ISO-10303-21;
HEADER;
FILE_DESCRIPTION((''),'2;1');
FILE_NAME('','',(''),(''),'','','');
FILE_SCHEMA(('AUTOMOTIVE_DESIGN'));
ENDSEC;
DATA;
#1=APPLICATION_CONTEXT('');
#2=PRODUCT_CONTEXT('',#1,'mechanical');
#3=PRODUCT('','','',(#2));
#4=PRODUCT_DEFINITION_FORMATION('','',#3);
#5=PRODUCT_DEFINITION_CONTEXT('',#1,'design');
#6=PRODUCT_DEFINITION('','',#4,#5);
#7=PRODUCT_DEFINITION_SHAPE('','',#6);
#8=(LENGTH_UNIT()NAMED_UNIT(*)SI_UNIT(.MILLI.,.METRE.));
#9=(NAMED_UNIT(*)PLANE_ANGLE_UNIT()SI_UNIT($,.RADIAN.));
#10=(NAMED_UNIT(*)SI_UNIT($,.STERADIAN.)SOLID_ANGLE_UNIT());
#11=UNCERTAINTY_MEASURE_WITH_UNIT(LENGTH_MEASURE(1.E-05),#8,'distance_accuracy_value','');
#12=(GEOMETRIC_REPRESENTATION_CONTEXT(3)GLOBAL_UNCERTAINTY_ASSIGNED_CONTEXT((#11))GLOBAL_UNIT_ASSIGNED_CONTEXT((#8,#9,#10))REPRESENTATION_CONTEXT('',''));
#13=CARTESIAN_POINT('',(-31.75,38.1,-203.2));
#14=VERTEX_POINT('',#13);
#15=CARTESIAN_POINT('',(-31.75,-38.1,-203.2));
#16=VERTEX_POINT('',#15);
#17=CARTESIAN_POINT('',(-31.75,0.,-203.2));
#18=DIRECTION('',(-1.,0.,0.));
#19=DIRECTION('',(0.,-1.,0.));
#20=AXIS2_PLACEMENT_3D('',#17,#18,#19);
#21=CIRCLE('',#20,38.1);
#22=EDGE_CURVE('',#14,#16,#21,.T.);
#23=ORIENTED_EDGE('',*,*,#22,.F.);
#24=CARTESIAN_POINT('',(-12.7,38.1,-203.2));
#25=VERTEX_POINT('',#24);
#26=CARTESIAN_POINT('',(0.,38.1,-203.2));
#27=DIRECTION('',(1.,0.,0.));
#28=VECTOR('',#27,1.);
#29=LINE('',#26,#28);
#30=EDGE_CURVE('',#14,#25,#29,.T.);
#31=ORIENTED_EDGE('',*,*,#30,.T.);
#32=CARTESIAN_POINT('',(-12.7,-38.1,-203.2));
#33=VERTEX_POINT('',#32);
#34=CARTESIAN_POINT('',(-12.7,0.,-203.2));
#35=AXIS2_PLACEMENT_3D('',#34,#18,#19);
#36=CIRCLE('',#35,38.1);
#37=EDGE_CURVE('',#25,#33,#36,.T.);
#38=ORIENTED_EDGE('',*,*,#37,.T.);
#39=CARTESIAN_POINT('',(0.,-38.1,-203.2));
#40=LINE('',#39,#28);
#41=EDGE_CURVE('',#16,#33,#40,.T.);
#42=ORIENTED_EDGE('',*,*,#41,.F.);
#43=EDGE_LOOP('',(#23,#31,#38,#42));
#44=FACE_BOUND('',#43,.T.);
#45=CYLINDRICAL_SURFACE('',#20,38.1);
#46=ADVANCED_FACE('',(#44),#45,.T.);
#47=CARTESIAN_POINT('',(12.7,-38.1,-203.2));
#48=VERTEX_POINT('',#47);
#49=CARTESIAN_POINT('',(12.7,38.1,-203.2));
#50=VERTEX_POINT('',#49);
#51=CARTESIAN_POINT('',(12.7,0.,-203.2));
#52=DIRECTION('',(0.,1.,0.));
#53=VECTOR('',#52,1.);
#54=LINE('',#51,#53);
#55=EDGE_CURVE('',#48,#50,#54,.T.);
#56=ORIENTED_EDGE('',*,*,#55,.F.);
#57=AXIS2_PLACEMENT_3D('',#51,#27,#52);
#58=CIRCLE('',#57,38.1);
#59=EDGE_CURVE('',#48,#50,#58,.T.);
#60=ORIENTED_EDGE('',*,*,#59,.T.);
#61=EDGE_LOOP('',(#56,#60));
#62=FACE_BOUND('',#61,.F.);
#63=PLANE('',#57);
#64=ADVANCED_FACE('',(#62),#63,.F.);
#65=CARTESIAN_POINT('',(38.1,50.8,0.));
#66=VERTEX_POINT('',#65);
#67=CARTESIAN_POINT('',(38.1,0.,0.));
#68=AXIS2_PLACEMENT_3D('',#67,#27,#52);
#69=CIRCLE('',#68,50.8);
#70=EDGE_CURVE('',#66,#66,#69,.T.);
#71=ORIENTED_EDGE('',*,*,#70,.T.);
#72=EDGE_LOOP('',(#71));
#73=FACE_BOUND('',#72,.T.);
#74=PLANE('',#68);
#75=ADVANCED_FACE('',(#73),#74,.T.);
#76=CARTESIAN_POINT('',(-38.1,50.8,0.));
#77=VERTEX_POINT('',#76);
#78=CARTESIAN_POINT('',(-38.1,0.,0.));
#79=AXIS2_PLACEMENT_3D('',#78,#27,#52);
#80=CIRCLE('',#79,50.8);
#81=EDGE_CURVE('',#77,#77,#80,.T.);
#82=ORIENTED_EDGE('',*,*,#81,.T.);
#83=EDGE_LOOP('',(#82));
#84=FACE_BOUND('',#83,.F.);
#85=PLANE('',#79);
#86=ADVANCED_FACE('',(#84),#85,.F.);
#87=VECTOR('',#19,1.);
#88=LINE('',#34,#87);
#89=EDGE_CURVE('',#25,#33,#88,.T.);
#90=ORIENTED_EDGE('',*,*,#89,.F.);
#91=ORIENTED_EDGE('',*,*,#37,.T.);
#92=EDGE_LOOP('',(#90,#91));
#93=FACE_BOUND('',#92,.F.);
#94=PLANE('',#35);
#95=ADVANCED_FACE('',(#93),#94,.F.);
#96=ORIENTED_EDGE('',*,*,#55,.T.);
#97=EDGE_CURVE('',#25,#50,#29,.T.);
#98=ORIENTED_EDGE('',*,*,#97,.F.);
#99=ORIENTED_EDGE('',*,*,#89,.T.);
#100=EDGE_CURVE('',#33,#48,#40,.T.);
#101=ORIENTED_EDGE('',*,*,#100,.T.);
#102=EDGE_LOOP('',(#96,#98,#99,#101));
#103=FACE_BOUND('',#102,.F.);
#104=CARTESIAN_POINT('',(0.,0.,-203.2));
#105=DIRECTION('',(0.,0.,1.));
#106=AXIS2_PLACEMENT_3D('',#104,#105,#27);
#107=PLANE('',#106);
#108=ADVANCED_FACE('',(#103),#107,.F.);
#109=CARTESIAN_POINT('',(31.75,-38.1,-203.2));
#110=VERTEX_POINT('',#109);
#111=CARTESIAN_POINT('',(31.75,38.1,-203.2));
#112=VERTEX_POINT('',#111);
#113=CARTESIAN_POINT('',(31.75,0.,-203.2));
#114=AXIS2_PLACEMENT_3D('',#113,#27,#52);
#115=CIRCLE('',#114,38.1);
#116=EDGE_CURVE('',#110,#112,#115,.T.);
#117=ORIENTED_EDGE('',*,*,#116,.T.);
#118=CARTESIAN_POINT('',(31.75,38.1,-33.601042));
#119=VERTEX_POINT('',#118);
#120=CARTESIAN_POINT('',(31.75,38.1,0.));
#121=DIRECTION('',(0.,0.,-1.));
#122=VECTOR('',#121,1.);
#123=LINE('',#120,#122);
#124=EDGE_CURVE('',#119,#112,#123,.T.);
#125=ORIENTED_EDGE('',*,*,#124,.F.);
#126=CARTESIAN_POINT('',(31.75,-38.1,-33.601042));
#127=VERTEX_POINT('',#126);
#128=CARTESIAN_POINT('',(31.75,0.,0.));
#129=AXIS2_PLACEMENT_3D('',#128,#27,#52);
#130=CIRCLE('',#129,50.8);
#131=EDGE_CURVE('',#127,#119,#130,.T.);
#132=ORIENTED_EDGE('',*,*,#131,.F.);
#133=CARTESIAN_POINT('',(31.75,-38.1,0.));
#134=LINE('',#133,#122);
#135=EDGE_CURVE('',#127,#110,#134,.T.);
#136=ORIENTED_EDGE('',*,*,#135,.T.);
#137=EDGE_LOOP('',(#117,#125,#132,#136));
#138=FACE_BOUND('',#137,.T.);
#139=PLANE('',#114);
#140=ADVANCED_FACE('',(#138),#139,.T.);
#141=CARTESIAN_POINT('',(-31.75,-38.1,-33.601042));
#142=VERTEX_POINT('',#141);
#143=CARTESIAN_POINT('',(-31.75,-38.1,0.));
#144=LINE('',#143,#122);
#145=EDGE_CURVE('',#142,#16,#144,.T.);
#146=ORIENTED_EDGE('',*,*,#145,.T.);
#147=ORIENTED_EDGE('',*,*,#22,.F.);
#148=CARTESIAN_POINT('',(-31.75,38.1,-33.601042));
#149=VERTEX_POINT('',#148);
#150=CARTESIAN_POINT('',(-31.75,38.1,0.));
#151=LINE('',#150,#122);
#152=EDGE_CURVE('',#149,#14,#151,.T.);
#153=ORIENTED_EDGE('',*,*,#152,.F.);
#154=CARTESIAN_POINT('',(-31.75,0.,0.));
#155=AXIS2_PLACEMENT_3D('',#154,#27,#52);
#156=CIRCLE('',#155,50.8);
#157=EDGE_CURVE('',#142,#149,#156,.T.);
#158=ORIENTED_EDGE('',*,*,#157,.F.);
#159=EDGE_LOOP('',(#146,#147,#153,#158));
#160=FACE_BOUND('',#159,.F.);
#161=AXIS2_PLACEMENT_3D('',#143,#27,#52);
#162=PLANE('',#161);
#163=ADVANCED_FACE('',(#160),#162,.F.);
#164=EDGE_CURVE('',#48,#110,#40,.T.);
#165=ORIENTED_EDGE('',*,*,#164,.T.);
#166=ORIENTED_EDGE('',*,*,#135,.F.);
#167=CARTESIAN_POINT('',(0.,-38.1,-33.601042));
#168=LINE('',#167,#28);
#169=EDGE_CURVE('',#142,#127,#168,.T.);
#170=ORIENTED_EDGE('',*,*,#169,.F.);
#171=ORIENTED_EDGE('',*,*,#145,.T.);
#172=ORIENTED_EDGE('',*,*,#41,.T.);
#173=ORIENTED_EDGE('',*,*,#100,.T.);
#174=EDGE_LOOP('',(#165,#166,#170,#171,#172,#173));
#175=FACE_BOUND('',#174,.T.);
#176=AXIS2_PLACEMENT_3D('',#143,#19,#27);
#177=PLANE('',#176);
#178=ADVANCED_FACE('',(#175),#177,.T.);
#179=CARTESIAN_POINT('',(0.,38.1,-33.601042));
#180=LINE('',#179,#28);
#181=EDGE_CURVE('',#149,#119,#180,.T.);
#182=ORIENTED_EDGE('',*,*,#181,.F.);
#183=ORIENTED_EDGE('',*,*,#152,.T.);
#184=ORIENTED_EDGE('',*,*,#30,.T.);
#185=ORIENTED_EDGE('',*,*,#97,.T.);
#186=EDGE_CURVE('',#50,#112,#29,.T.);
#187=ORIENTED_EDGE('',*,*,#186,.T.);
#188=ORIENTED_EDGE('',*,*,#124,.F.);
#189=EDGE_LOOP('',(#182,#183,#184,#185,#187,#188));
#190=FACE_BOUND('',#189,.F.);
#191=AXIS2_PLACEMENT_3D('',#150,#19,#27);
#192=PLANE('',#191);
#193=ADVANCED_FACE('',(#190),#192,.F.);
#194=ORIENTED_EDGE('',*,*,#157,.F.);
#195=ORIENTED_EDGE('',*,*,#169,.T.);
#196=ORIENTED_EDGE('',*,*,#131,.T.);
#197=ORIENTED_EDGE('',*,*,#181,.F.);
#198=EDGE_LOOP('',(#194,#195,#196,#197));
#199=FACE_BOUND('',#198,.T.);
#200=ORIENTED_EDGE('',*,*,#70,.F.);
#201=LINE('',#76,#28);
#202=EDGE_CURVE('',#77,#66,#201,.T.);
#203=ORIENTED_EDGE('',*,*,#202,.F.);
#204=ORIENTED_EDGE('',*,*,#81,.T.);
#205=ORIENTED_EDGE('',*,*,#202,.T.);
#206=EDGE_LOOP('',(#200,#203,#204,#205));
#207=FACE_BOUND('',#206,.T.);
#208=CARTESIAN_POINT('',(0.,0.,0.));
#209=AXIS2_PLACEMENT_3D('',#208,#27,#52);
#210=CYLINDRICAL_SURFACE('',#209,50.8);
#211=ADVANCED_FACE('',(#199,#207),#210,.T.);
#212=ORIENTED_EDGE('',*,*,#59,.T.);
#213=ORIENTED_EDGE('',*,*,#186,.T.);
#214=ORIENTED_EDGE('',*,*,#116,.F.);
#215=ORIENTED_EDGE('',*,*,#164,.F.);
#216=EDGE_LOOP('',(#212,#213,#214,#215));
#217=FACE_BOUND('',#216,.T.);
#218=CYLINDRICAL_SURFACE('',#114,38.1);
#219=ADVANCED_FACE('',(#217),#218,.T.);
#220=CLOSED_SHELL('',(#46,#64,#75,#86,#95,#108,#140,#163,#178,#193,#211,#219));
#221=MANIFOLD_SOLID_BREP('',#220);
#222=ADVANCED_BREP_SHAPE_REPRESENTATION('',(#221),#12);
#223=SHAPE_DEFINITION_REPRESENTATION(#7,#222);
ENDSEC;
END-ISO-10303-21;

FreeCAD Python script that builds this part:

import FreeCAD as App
import Part
import Sketcher

V = App.Vector
Q = App.Units.Quantity

doc = App.newDocument("Part")
body = doc.addObject("PartDesign::Body", "Body")

# Sketch on YZ plane
sketch1 = body.newObject("Sketcher::SketchObject", "Sketch")
sketch1.AttachmentSupport = (doc.getObject("YZ_Plane"), [""])
sketch1.MapMode = "FlatFace"
sketch1.addGeometry(Part.Circle(V(0, 0, 0), V(0, 0, 1), 51), False)
sketch1.addConstraint(Sketcher.Constraint("Coincident", 0, 3, -1, 1))
sketch1.addConstraint(Sketcher.Constraint("Diameter", 0, Q("4 in")))
pad1 = body.newObject("PartDesign::Pad", "Pad")
pad1.Profile = sketch1
pad1.Length = Q("3 in")
pad1.Midplane = True

# Sketch on XY plane
sketch2 = body.newObject("Sketcher::SketchObject", "Sketch001")
sketch2.AttachmentSupport = (doc.getObject("XY_Plane"), [""])
sketch2.MapMode = "FlatFace"
sketch2.addGeometry(Part.LineSegment(V(-32, 38, 0), V(-32, -38, 0)), False)
sketch2.addGeometry(Part.LineSegment(V(-32, -38, 0), V(32, -38, 0)), False)
sketch2.addGeometry(Part.LineSegment(V(32, -38, 0), V(32, 38, 0)), False)
sketch2.addGeometry(Part.LineSegment(V(32, 38, 0), V(-32, 38, 0)), False)
sketch2.addConstraint(Sketcher.Constraint("Coincident", 0, 2, 1, 1))
sketch2.addConstraint(Sketcher.Constraint("Coincident", 1, 2, 2, 1))
sketch2.addConstraint(Sketcher.Constraint("Coincident", 2, 2, 3, 1))
sketch2.addConstraint(Sketcher.Constraint("Coincident", 3, 2, 0, 1))
sketch2.addConstraint(Sketcher.Constraint("Vertical", 0))
sketch2.addConstraint(Sketcher.Constraint("Horizontal", 1))
sketch2.addConstraint(Sketcher.Constraint("Vertical", 2))
sketch2.addConstraint(Sketcher.Constraint("Horizontal", 3))
sketch2.addConstraint(Sketcher.Constraint("Symmetric", 0, 2, 2, 2, -1, 1))
sketch2.addConstraint(Sketcher.Constraint("DistanceY", 0, 2, 0, 1, Q("3 in")))
sketch2.addConstraint(Sketcher.Constraint("DistanceX", 1, 1, 1, 2, Q("2.5 in")))
pad2 = body.newObject("PartDesign::Pad", "Pad001")
pad2.Profile = sketch2
pad2.Length = Q("8 in")
pad2.Reversed = True

# Sketch on YZ plane
sketch3 = body.newObject("Sketcher::SketchObject", "Sketch002")
sketch3.AttachmentSupport = (doc.getObject("YZ_Plane"), [""])
sketch3.MapMode = "FlatFace"
sketch3.AttachmentOffset = App.Placement(V(0, 0, -1.25 * 25.4), App.Rotation())
sketch3.addGeometry(Part.Circle(V(0, -203, 0), V(0, 0, 1), 38), False)
sketch3.addConstraint(Sketcher.Constraint("PointOnObject", 0, 3, -2))
sketch3.addConstraint(Sketcher.Constraint("Diameter", 0, Q("3 in")))
sketch3.addConstraint(Sketcher.Constraint("DistanceY", 0, 3, -1, 1, Q("8 in")))
pad3 = body.newObject("PartDesign::Pad", "Pad002")
pad3.Profile = sketch3
pad3.Length = Q("0.75 in")

# Sketch on YZ plane
sketch4 = body.newObject("Sketcher::SketchObject", "Sketch003")
sketch4.AttachmentSupport = (doc.getObject("YZ_Plane"), [""])
sketch4.MapMode = "FlatFace"
sketch4.AttachmentOffset = App.Placement(V(0, 0, 1.25 * 25.4), App.Rotation())
sketch4.addGeometry(Part.Circle(V(0, -203, 0), V(0, 0, 1), 38), False)
sketch4.addConstraint(Sketcher.Constraint("PointOnObject", 0, 3, -2))
sketch4.addConstraint(Sketcher.Constraint("Diameter", 0, Q("3 in")))
sketch4.addConstraint(Sketcher.Constraint("DistanceY", 0, 3, -1, 1, Q("8 in")))
pad4 = body.newObject("PartDesign::Pad", "Pad003")
pad4.Profile = sketch4
pad4.Length = Q("0.75 in")
pad4.Reversed = True

doc.recompute()
